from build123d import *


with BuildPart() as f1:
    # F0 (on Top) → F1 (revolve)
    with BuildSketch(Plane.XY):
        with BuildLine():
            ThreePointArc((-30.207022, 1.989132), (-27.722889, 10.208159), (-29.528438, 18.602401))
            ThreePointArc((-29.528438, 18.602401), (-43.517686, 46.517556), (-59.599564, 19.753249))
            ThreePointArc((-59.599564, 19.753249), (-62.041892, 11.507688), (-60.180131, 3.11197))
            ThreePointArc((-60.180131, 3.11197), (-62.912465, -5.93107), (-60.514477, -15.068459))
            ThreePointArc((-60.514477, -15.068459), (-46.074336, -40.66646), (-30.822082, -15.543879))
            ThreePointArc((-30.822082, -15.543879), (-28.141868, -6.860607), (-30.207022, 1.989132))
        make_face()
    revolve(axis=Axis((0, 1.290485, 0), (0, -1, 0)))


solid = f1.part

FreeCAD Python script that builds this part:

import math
import FreeCAD as App
import Part
import Sketcher

V = App.Vector
Q = App.Units.Quantity

doc = App.newDocument("Part")
body = doc.addObject("PartDesign::Body", "Body")

sketch1 = doc.addObject("Sketcher::SketchObject", "Sketch")
body.addObject(sketch1)
sketch1.AttachmentSupport = (doc.XY_Plane, [""])
sketch1.MapMode = "FlatFace"
sketch1.addGeometry([
    Part.ArcOfCircle(Part.Circle(V(-45, 11, 0), V(0, 0, 1), 17), math.radians(-31), math.radians(27)),
    Part.ArcOfCircle(Part.Circle(V(-44, 29, 0), V(0, 0, 1), 18), math.radians(-35), math.radians(210)),
    Part.ArcOfCircle(Part.Circle(V(-45, 11, 0), V(0, 0, 1), 17), math.radians(149), math.radians(207)),
    Part.ArcOfCircle(Part.Circle(V(-46, -6, 0), V(0, 0, 1), 17), math.radians(147), math.radians(210)),
    Part.ArcOfCircle(Part.Circle(V(-46, -24, 0), V(0, 0, 1), 17), math.radians(150), math.radians(388)),
    Part.ArcOfCircle(Part.Circle(V(-46, -6, 0), V(0, 0, 1), 17), math.radians(-32), math.radians(28)),
], False)
sketch1.addConstraint([
    Sketcher.Constraint("Coincident", 0, 2, 1, 1),
    Sketcher.Constraint("Coincident", 1, 2, 2, 1),
    Sketcher.Constraint("Coincident", 2, 2, 3, 1),
    Sketcher.Constraint("Coincident", 3, 2, 4, 1),
    Sketcher.Constraint("Coincident", 4, 2, 5, 1),
    Sketcher.Constraint("Coincident", 5, 2, 0, 1),
    Sketcher.Constraint("Coincident", 2, 3, 0, 3),
    Sketcher.Constraint("Coincident", 5, 3, 3, 3),
    Sketcher.Constraint("Radius", 0, Q("17.171877 mm")),
    Sketcher.Constraint("Radius", 1, Q("17.817325 mm")),
    Sketcher.Constraint("Radius", 2, Q("17.171874 mm")),
    Sketcher.Constraint("Radius", 3, Q("17.392112 mm")),
    Sketcher.Constraint("Radius", 4, Q("17.027893 mm")),
    Sketcher.Constraint("Radius", 5, Q("17.392115 mm")),
    Sketcher.Constraint("DistanceY", -1, 1, 0, 2, Q("18.602401 mm")),
    Sketcher.Constraint("DistanceX", 0, 3, -1, 1, Q("44.880459 mm")),
    Sketcher.Constraint("DistanceX", 1, 3, -1, 1, Q("44.199071 mm")),
    Sketcher.Constraint("DistanceX", 4, 3, -1, 1, Q("45.801729 mm")),
    Sketcher.Constraint("DistanceY", 4, 3, -1, 1, Q("23.64075 mm")),
    Sketcher.Constraint("DistanceX", 5, 3, -1, 1, Q("45.523291 mm")),
    Sketcher.Constraint("DistanceX", 0, 2, -1, 1, Q("29.528438 mm")),
    Sketcher.Constraint("DistanceX", 2, 2, -1, 1, Q("60.180131 mm")),
])
revolution = doc.addObject("PartDesign::Revolution", "Revolution")
body.addObject(revolution)
revolution.Profile = sketch1
revolution.ReferenceAxis = (sketch1, ["V_Axis"])
revolution.Angle = 360

doc.recompute()
